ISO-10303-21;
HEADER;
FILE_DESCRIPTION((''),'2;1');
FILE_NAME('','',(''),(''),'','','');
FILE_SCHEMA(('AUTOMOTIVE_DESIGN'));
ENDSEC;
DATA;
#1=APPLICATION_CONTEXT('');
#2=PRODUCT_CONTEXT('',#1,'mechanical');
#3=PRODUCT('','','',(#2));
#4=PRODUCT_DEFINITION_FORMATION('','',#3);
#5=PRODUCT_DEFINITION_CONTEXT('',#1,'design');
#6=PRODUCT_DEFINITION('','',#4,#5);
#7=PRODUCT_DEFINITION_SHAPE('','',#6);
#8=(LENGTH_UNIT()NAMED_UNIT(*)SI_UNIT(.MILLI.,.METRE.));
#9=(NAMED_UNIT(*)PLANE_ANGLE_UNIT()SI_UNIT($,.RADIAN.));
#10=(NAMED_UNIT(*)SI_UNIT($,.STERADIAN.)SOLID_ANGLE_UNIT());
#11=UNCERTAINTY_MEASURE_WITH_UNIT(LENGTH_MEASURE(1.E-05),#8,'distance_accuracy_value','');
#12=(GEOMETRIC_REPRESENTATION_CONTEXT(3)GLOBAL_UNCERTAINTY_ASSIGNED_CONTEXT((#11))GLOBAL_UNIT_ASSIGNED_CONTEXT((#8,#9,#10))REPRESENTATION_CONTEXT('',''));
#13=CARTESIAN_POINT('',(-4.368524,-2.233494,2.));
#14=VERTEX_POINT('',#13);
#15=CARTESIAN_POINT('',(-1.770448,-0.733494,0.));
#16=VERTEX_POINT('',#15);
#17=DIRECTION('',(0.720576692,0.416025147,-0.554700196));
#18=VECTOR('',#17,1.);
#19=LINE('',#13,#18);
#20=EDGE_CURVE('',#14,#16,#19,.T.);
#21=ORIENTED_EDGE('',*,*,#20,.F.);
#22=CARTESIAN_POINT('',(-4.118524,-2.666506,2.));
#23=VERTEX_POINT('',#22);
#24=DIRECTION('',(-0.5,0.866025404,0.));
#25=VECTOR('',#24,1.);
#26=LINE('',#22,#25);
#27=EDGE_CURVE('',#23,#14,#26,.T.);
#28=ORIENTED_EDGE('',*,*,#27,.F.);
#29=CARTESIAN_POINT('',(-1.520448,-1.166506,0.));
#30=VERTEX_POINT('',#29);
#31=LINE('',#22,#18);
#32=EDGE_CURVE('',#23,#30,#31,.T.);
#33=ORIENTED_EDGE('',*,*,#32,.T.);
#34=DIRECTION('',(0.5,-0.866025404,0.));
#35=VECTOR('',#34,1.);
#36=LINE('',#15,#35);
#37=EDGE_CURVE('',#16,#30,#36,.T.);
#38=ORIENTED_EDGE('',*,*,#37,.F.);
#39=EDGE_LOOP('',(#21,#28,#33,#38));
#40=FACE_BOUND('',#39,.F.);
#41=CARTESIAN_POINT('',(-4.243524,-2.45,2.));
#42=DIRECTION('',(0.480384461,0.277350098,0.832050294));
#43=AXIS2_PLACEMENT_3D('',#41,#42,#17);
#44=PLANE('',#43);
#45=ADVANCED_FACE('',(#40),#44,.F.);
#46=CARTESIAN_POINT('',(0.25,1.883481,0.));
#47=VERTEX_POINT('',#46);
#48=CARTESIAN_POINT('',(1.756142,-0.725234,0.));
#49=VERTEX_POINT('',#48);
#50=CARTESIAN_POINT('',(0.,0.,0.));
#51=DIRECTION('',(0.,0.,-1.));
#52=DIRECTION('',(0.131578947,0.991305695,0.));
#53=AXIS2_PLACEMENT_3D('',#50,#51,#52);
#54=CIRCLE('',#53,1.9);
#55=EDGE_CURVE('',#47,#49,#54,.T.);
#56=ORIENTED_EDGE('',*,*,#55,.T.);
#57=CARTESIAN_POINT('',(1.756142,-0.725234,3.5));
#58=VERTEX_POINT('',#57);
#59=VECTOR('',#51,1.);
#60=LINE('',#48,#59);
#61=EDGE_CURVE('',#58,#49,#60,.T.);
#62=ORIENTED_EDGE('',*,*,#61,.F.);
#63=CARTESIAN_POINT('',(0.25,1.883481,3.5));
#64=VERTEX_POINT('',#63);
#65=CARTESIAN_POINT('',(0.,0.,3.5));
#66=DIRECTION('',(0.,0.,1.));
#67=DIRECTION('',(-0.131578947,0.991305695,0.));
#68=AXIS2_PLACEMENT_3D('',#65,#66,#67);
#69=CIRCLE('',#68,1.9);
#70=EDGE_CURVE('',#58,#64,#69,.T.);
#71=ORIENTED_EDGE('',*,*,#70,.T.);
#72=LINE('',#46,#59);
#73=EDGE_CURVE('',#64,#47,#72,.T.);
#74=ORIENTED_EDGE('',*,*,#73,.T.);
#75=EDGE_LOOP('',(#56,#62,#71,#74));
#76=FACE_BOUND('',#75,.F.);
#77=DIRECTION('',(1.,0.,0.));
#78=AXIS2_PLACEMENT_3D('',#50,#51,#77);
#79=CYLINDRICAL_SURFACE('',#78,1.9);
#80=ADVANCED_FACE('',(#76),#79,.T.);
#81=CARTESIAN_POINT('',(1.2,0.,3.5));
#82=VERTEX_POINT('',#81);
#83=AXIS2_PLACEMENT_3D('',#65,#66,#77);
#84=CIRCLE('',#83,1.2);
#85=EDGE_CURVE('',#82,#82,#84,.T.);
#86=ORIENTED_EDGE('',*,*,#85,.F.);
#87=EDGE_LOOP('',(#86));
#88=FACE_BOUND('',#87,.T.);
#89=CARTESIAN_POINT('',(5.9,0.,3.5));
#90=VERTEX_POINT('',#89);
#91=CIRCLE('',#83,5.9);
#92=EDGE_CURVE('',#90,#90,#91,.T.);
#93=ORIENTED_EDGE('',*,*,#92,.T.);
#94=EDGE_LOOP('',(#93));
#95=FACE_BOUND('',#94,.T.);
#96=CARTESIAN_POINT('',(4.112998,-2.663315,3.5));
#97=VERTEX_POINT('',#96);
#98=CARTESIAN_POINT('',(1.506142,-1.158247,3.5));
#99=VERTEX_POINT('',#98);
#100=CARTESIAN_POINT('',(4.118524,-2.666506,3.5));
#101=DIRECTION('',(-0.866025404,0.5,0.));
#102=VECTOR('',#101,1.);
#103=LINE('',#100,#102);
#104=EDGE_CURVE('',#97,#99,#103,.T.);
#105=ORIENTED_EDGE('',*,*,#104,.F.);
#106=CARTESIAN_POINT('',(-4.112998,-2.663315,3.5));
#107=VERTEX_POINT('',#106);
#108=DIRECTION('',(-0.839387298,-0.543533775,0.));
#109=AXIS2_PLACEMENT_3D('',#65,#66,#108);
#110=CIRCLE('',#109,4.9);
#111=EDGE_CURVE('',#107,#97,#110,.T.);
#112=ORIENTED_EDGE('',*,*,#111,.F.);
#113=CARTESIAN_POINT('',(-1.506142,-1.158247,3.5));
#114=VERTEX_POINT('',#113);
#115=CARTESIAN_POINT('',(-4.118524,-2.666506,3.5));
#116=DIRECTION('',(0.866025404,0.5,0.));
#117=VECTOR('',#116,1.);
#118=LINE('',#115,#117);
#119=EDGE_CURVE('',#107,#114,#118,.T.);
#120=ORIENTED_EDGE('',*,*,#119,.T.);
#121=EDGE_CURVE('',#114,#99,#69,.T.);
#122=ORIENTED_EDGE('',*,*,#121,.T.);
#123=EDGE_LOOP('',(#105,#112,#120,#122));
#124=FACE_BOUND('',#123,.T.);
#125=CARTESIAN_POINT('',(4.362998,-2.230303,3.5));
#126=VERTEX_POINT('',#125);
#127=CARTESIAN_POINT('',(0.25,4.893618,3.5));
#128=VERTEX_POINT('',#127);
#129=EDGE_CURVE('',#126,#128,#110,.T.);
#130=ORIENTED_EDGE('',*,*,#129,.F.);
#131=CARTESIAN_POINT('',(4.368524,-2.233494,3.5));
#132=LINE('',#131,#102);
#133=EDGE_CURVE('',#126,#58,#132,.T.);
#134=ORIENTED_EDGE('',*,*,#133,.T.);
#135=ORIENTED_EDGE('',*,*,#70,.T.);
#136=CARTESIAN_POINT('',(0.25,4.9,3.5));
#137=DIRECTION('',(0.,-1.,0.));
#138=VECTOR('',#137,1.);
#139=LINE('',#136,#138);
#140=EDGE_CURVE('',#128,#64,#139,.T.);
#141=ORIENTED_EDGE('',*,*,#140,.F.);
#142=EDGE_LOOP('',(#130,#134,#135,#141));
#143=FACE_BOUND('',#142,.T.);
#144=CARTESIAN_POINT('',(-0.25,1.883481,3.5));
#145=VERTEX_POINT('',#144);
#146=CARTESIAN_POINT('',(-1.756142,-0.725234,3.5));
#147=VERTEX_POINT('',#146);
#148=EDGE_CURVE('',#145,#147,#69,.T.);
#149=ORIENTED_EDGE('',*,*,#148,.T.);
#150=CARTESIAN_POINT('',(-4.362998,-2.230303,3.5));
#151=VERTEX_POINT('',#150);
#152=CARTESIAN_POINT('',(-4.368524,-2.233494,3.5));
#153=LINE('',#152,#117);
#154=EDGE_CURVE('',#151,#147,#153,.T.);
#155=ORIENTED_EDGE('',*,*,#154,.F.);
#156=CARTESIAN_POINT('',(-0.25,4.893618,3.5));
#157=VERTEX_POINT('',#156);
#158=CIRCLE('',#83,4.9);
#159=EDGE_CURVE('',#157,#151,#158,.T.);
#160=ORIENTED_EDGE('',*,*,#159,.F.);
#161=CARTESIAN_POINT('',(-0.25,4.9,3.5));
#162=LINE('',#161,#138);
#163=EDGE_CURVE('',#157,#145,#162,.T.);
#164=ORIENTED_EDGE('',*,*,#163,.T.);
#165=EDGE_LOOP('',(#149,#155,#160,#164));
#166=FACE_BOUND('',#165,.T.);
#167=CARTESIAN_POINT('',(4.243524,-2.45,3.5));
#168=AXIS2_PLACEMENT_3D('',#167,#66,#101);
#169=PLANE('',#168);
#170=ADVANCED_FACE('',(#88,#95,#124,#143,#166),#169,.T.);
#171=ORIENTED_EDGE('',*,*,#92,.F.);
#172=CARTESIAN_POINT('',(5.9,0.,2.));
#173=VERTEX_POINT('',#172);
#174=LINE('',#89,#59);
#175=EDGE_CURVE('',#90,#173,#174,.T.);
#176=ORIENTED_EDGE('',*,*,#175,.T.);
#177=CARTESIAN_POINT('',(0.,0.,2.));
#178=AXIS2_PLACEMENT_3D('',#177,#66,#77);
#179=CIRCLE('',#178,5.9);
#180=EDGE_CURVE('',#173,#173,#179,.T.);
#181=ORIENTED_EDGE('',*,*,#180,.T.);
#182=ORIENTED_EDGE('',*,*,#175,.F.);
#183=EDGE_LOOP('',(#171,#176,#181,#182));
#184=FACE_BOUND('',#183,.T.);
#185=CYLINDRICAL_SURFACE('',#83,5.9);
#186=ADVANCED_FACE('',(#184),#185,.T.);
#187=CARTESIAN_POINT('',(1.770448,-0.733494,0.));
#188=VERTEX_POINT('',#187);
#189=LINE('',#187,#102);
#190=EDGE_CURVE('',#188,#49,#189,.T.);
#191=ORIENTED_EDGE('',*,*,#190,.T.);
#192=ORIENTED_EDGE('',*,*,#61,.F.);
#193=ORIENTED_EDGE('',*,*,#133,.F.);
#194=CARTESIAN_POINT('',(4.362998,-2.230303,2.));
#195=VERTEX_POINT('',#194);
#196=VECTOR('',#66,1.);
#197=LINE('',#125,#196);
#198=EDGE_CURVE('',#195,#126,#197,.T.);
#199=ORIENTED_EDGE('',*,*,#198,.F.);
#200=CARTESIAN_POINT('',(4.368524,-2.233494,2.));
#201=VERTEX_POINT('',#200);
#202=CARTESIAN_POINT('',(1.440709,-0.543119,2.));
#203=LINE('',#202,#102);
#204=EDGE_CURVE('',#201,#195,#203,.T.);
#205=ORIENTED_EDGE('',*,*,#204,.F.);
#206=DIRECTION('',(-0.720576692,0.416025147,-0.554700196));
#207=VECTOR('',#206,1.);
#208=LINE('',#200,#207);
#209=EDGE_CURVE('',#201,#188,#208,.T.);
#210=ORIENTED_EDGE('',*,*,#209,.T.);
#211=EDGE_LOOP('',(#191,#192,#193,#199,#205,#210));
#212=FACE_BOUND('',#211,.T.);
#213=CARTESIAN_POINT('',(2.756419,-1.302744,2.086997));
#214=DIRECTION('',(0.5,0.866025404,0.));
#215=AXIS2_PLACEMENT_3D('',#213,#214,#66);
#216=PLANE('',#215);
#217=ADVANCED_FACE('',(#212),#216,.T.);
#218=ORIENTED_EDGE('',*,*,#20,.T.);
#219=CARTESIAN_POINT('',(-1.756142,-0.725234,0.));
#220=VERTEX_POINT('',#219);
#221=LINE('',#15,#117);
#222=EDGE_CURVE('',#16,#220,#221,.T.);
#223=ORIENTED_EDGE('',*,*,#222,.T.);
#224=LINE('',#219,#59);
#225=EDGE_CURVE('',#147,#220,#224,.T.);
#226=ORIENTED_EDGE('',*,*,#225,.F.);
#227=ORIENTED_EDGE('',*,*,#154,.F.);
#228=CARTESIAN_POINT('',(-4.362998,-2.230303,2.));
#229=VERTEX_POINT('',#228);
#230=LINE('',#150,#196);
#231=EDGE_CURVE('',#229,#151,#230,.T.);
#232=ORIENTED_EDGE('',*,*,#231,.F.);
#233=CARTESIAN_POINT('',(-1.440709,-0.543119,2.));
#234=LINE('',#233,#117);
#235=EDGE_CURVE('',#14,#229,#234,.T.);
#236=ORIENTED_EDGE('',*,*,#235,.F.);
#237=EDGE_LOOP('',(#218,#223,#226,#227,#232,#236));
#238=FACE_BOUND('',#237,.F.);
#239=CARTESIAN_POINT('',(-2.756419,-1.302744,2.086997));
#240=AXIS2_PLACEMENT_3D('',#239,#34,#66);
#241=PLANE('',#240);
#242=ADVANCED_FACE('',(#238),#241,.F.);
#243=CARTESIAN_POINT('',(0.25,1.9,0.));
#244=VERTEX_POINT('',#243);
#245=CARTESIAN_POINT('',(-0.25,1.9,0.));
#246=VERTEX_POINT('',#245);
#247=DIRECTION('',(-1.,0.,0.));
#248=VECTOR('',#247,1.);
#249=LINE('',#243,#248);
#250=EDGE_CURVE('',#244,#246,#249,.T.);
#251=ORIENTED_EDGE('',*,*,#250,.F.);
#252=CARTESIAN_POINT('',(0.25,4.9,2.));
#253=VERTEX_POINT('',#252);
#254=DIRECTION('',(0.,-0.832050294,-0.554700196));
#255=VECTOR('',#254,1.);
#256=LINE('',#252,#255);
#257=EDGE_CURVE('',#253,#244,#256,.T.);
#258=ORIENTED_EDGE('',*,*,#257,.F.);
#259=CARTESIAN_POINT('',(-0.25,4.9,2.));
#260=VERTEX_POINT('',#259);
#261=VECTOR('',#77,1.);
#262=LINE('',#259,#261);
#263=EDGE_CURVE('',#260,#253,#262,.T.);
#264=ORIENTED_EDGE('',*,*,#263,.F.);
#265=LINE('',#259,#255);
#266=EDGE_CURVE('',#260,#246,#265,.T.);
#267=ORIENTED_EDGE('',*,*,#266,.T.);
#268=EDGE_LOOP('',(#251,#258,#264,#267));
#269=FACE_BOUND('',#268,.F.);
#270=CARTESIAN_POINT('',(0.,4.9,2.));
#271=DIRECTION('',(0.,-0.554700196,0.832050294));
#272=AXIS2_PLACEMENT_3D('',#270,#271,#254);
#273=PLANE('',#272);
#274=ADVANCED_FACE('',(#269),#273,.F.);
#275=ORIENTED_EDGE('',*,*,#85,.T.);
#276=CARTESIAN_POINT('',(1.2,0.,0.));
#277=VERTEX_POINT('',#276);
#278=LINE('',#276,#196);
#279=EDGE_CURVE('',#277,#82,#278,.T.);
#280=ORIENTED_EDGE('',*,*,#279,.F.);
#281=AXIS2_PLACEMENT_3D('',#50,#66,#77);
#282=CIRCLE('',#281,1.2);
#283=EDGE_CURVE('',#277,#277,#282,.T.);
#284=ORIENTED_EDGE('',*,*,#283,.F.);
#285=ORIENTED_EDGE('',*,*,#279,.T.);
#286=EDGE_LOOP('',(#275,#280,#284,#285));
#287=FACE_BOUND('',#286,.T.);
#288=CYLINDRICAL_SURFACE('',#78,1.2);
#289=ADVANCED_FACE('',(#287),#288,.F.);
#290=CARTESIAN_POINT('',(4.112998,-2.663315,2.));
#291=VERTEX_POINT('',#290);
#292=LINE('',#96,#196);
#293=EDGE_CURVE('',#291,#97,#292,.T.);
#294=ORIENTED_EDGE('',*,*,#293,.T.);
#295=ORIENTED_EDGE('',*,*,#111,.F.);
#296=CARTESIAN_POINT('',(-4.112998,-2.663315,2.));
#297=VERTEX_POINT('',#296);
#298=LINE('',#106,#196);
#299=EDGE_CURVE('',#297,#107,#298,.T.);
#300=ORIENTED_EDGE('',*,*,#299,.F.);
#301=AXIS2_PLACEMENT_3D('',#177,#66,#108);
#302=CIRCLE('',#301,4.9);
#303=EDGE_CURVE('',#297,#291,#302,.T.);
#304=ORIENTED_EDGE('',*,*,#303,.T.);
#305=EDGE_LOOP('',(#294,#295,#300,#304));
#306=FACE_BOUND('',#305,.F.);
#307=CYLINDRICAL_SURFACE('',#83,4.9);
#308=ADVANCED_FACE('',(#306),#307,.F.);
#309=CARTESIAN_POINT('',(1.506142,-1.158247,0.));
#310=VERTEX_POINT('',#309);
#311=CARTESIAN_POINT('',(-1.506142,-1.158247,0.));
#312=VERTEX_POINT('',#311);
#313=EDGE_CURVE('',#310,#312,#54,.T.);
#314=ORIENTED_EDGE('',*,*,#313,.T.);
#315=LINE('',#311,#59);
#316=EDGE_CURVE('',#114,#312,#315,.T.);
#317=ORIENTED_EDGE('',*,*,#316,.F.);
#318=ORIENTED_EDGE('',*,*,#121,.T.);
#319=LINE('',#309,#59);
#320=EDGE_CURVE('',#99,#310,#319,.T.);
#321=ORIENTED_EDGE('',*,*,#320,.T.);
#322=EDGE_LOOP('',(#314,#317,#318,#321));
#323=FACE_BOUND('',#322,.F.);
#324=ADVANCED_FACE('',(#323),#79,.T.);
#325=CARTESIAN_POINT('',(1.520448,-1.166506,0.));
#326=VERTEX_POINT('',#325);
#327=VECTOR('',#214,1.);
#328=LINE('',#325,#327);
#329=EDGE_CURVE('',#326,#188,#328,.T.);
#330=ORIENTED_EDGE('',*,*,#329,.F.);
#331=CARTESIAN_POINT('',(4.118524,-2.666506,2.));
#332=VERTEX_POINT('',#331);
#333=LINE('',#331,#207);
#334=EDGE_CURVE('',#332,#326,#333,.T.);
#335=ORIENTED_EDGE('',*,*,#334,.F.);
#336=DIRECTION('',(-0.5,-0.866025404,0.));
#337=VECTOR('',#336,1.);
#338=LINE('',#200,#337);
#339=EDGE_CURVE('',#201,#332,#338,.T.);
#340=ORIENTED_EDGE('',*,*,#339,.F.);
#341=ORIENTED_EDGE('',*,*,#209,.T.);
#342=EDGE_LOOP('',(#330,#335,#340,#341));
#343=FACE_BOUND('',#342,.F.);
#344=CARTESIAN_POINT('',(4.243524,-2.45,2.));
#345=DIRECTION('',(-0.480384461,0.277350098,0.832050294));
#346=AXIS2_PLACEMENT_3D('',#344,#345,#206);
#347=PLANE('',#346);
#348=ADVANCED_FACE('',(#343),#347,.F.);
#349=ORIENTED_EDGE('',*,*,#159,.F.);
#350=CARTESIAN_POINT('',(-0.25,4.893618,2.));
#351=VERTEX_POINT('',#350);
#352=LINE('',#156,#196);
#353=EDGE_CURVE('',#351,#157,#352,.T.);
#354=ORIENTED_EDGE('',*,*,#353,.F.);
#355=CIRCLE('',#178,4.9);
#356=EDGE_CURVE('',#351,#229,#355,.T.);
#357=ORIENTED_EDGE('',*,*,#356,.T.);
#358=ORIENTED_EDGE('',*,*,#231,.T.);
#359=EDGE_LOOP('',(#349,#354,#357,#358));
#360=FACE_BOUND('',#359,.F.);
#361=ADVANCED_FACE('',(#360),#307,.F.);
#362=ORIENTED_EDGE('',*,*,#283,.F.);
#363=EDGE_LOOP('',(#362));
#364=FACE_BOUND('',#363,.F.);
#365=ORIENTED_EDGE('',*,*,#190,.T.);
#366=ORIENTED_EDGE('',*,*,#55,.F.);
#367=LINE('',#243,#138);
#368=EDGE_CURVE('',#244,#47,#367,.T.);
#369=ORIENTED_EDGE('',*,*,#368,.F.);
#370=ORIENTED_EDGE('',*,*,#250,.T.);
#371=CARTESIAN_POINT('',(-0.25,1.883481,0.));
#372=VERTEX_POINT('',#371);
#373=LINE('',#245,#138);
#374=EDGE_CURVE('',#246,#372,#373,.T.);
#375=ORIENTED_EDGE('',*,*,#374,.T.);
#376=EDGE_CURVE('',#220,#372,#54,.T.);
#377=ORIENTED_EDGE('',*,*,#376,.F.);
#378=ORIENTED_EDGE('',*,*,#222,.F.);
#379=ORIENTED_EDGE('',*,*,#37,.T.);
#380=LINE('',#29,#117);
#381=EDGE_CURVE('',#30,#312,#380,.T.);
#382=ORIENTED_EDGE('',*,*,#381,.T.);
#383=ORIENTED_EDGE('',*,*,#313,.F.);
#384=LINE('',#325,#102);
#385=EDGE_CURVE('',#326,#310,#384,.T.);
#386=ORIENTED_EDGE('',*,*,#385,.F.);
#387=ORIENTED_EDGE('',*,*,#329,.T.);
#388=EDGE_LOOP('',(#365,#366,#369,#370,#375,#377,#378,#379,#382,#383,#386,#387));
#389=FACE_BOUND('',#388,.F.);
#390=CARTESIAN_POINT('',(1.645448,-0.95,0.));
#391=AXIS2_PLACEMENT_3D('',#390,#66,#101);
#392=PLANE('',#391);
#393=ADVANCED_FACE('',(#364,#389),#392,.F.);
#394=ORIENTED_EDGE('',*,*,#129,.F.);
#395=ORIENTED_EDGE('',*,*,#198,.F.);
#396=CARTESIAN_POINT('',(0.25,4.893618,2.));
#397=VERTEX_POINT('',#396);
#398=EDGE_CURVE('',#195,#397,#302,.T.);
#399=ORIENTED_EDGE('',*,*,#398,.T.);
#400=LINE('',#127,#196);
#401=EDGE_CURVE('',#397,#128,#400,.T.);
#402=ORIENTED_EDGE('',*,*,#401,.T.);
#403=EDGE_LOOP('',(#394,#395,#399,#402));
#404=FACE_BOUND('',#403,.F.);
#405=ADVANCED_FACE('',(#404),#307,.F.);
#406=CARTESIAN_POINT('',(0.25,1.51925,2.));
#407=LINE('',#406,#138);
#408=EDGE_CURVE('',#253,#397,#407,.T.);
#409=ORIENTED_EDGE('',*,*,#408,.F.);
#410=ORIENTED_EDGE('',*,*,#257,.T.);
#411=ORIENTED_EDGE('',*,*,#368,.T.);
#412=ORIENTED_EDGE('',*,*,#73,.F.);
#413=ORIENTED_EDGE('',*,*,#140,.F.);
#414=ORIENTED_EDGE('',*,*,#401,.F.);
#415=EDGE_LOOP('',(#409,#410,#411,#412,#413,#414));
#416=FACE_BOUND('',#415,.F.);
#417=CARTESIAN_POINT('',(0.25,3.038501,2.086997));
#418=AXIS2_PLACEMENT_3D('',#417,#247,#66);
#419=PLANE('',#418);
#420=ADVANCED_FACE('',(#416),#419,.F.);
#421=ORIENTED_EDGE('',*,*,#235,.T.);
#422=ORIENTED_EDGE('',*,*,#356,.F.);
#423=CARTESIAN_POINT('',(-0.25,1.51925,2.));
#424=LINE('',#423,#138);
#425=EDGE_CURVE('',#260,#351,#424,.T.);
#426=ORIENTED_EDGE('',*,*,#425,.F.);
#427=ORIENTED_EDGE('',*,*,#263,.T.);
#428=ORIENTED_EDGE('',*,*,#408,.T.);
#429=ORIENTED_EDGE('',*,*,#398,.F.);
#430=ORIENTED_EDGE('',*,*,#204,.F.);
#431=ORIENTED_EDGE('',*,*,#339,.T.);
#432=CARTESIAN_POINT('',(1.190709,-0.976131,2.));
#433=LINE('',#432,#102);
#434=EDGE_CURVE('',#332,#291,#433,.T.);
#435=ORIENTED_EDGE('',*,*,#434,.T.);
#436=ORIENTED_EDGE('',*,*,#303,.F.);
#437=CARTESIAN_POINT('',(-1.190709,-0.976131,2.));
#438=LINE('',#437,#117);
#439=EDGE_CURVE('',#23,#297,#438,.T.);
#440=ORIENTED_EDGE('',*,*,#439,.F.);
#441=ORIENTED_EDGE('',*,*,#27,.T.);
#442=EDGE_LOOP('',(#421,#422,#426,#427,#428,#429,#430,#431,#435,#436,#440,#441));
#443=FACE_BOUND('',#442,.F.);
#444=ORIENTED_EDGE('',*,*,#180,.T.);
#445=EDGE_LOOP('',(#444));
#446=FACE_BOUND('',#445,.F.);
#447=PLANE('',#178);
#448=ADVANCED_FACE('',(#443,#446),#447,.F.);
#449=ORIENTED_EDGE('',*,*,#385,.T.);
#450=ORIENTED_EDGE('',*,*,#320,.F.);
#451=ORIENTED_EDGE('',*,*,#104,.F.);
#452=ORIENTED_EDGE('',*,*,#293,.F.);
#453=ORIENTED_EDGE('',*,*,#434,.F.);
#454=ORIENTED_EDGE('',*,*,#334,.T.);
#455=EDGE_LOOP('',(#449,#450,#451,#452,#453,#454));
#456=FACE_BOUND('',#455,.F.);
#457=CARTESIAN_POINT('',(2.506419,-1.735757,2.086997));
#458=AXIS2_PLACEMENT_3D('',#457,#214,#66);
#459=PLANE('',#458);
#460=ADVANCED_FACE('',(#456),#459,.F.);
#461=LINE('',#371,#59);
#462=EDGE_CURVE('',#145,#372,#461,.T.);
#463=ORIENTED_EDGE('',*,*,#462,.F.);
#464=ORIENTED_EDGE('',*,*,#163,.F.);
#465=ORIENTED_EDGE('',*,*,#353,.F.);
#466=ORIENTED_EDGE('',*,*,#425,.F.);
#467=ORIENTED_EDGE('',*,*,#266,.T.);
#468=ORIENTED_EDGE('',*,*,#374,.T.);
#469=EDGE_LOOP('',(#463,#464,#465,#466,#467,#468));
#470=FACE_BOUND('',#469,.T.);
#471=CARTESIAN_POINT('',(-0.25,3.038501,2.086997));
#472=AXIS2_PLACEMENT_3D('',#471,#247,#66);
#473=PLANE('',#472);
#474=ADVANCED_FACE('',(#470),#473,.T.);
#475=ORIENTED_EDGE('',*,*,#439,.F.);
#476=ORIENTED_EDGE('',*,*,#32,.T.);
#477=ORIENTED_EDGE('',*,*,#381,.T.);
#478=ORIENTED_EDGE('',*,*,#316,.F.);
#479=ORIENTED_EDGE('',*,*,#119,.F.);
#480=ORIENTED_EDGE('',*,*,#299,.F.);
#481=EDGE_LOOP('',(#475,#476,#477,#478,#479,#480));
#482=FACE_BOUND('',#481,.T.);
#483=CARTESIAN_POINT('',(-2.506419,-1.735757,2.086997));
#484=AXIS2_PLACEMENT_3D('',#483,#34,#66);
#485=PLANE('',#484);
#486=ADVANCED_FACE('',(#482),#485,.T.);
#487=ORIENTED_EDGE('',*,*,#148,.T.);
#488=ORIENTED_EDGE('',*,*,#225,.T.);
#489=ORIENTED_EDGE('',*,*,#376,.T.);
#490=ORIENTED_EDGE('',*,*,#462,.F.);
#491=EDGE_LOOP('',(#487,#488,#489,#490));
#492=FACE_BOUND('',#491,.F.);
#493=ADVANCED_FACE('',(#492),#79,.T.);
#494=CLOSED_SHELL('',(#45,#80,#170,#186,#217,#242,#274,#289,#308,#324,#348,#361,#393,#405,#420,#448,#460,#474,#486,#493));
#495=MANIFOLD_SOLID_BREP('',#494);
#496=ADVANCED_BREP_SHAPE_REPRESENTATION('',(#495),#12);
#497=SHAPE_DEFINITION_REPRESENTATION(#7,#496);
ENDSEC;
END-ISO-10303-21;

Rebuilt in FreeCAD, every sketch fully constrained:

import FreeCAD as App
import Part
import Sketcher

V = App.Vector
Q = App.Units.Quantity

doc = App.newDocument("Part")
body = doc.addObject("PartDesign::Body", "Body")

sketch1 = body.newObject("Sketcher::SketchObject", "Sketch")
sketch1.AttachmentSupport = (doc.getObject("XY_Plane"), [""])
sketch1.MapMode = "FlatFace"
sketch1.addGeometry([
    Part.Circle(V(0, 0, 0), V(0, 0, 1), 1.9),
    Part.Circle(V(0, 0, 0), V(0, 0, 1), 1.2),
], False)
sketch1.addConstraint([
    Sketcher.Constraint("Coincident", 0, 3, -1, 1),
    Sketcher.Constraint("Coincident", 1, 3, -1, 1),
    Sketcher.Constraint("Diameter", 0, Q("3.8 mm")),
    Sketcher.Constraint("Diameter", 1, Q("2.4 mm")),
])
pad1 = body.newObject("PartDesign::Pad", "Pad")
pad1.Profile = sketch1
pad1.Length = 3.5
body2 = doc.addObject("PartDesign::Body", "Body001")

sketch2 = body2.newObject("Sketcher::SketchObject", "Sketch001")
sketch2.AttachmentSupport = (doc.getObject("XY_Plane001"), [""])
sketch2.MapMode = "FlatFace"
sketch2.AttachmentOffset = App.Placement(V(0, 0, 3.5), App.Rotation())
sketch2.addGeometry([
    Part.Circle(V(0, 0, 0), V(0, 0, 1), 5.9),
    Part.Circle(V(0, 0, 0), V(0, 0, 1), 4.9),
], False)
sketch2.addConstraint([
    Sketcher.Constraint("Coincident", 0, 3, -1, 1),
    Sketcher.Constraint("Coincident", 1, 3, -1, 1),
    Sketcher.Constraint("Diameter", 0, Q("11.8 mm")),
    Sketcher.Constraint("Diameter", 1, Q("9.8 mm")),
])
pad2 = body2.newObject("PartDesign::Pad", "Pad001")
pad2.Profile = sketch2
pad2.Length = 1.5
pad2.Reversed = True
body.AllowCompound = True
doc.recompute()

boolean = body.newObject("PartDesign::Boolean", "Boolean")
boolean.Type = "Fuse"
boolean.addObjects([body2])

sketch3 = body.newObject("Sketcher::SketchObject", "Sketch002")
sketch3.AttachmentSupport = (doc.getObject("YZ_Plane"), [""])
sketch3.MapMode = "FlatFace"
sketch3.addGeometry([
    Part.LineSegment(V(1.9, 0, 0), V(4.9, 2, 0)),
    Part.LineSegment(V(4.9, 2, 0), V(4.9, 3.5, 0)),
    Part.LineSegment(V(4.9, 3.5, 0), V(1.7, 3.5, 0)),
    Part.LineSegment(V(1.7, 3.5, 0), V(1.7, 0, 0)),
    Part.LineSegment(V(1.7, 0, 0), V(1.9, 0, 0)),
], False)
sketch3.addConstraint([
    Sketcher.Constraint("Coincident", 0, 2, 1, 1),
    Sketcher.Constraint("Coincident", 1, 2, 2, 1),
    Sketcher.Constraint("Coincident", 2, 2, 3, 1),
    Sketcher.Constraint("Coincident", 3, 2, 4, 1),
    Sketcher.Constraint("Coincident", 4, 2, 0, 1),
    Sketcher.Constraint("Vertical", 1),
    Sketcher.Constraint("Horizontal", 2),
    Sketcher.Constraint("Vertical", 3),
    Sketcher.Constraint("Horizontal", 4),
    Sketcher.Constraint("PointOnObject", 3, 2, -1),
    Sketcher.Constraint("DistanceX", 2, 2, 2, 1, Q("3.2 mm")),
    Sketcher.Constraint("DistanceX", 4, 1, 4, 2, Q("0.2 mm")),
    Sketcher.Constraint("DistanceY", 1, 1, 1, 2, Q("1.5 mm")),
    Sketcher.Constraint("DistanceY", 3, 2, 3, 1, Q("3.5 mm")),
    Sketcher.Constraint("DistanceX", -1, 1, 0, 2, Q("4.9 mm")),
])
pad3 = body.newObject("PartDesign::Pad", "Pad002")
pad3.Profile = sketch3
pad3.Length = 0.5
pad3.Midplane = True
doc.recompute()

polarpattern = body.newObject("PartDesign::PolarPattern", "PolarPattern")
polarpattern.Originals = [pad3]
polarpattern.Axis = (doc.getObject("Z_Axis"), [""])
polarpattern.Angle = 360
polarpattern.Occurrences = 3
body.Tip = polarpattern

doc.recompute()
